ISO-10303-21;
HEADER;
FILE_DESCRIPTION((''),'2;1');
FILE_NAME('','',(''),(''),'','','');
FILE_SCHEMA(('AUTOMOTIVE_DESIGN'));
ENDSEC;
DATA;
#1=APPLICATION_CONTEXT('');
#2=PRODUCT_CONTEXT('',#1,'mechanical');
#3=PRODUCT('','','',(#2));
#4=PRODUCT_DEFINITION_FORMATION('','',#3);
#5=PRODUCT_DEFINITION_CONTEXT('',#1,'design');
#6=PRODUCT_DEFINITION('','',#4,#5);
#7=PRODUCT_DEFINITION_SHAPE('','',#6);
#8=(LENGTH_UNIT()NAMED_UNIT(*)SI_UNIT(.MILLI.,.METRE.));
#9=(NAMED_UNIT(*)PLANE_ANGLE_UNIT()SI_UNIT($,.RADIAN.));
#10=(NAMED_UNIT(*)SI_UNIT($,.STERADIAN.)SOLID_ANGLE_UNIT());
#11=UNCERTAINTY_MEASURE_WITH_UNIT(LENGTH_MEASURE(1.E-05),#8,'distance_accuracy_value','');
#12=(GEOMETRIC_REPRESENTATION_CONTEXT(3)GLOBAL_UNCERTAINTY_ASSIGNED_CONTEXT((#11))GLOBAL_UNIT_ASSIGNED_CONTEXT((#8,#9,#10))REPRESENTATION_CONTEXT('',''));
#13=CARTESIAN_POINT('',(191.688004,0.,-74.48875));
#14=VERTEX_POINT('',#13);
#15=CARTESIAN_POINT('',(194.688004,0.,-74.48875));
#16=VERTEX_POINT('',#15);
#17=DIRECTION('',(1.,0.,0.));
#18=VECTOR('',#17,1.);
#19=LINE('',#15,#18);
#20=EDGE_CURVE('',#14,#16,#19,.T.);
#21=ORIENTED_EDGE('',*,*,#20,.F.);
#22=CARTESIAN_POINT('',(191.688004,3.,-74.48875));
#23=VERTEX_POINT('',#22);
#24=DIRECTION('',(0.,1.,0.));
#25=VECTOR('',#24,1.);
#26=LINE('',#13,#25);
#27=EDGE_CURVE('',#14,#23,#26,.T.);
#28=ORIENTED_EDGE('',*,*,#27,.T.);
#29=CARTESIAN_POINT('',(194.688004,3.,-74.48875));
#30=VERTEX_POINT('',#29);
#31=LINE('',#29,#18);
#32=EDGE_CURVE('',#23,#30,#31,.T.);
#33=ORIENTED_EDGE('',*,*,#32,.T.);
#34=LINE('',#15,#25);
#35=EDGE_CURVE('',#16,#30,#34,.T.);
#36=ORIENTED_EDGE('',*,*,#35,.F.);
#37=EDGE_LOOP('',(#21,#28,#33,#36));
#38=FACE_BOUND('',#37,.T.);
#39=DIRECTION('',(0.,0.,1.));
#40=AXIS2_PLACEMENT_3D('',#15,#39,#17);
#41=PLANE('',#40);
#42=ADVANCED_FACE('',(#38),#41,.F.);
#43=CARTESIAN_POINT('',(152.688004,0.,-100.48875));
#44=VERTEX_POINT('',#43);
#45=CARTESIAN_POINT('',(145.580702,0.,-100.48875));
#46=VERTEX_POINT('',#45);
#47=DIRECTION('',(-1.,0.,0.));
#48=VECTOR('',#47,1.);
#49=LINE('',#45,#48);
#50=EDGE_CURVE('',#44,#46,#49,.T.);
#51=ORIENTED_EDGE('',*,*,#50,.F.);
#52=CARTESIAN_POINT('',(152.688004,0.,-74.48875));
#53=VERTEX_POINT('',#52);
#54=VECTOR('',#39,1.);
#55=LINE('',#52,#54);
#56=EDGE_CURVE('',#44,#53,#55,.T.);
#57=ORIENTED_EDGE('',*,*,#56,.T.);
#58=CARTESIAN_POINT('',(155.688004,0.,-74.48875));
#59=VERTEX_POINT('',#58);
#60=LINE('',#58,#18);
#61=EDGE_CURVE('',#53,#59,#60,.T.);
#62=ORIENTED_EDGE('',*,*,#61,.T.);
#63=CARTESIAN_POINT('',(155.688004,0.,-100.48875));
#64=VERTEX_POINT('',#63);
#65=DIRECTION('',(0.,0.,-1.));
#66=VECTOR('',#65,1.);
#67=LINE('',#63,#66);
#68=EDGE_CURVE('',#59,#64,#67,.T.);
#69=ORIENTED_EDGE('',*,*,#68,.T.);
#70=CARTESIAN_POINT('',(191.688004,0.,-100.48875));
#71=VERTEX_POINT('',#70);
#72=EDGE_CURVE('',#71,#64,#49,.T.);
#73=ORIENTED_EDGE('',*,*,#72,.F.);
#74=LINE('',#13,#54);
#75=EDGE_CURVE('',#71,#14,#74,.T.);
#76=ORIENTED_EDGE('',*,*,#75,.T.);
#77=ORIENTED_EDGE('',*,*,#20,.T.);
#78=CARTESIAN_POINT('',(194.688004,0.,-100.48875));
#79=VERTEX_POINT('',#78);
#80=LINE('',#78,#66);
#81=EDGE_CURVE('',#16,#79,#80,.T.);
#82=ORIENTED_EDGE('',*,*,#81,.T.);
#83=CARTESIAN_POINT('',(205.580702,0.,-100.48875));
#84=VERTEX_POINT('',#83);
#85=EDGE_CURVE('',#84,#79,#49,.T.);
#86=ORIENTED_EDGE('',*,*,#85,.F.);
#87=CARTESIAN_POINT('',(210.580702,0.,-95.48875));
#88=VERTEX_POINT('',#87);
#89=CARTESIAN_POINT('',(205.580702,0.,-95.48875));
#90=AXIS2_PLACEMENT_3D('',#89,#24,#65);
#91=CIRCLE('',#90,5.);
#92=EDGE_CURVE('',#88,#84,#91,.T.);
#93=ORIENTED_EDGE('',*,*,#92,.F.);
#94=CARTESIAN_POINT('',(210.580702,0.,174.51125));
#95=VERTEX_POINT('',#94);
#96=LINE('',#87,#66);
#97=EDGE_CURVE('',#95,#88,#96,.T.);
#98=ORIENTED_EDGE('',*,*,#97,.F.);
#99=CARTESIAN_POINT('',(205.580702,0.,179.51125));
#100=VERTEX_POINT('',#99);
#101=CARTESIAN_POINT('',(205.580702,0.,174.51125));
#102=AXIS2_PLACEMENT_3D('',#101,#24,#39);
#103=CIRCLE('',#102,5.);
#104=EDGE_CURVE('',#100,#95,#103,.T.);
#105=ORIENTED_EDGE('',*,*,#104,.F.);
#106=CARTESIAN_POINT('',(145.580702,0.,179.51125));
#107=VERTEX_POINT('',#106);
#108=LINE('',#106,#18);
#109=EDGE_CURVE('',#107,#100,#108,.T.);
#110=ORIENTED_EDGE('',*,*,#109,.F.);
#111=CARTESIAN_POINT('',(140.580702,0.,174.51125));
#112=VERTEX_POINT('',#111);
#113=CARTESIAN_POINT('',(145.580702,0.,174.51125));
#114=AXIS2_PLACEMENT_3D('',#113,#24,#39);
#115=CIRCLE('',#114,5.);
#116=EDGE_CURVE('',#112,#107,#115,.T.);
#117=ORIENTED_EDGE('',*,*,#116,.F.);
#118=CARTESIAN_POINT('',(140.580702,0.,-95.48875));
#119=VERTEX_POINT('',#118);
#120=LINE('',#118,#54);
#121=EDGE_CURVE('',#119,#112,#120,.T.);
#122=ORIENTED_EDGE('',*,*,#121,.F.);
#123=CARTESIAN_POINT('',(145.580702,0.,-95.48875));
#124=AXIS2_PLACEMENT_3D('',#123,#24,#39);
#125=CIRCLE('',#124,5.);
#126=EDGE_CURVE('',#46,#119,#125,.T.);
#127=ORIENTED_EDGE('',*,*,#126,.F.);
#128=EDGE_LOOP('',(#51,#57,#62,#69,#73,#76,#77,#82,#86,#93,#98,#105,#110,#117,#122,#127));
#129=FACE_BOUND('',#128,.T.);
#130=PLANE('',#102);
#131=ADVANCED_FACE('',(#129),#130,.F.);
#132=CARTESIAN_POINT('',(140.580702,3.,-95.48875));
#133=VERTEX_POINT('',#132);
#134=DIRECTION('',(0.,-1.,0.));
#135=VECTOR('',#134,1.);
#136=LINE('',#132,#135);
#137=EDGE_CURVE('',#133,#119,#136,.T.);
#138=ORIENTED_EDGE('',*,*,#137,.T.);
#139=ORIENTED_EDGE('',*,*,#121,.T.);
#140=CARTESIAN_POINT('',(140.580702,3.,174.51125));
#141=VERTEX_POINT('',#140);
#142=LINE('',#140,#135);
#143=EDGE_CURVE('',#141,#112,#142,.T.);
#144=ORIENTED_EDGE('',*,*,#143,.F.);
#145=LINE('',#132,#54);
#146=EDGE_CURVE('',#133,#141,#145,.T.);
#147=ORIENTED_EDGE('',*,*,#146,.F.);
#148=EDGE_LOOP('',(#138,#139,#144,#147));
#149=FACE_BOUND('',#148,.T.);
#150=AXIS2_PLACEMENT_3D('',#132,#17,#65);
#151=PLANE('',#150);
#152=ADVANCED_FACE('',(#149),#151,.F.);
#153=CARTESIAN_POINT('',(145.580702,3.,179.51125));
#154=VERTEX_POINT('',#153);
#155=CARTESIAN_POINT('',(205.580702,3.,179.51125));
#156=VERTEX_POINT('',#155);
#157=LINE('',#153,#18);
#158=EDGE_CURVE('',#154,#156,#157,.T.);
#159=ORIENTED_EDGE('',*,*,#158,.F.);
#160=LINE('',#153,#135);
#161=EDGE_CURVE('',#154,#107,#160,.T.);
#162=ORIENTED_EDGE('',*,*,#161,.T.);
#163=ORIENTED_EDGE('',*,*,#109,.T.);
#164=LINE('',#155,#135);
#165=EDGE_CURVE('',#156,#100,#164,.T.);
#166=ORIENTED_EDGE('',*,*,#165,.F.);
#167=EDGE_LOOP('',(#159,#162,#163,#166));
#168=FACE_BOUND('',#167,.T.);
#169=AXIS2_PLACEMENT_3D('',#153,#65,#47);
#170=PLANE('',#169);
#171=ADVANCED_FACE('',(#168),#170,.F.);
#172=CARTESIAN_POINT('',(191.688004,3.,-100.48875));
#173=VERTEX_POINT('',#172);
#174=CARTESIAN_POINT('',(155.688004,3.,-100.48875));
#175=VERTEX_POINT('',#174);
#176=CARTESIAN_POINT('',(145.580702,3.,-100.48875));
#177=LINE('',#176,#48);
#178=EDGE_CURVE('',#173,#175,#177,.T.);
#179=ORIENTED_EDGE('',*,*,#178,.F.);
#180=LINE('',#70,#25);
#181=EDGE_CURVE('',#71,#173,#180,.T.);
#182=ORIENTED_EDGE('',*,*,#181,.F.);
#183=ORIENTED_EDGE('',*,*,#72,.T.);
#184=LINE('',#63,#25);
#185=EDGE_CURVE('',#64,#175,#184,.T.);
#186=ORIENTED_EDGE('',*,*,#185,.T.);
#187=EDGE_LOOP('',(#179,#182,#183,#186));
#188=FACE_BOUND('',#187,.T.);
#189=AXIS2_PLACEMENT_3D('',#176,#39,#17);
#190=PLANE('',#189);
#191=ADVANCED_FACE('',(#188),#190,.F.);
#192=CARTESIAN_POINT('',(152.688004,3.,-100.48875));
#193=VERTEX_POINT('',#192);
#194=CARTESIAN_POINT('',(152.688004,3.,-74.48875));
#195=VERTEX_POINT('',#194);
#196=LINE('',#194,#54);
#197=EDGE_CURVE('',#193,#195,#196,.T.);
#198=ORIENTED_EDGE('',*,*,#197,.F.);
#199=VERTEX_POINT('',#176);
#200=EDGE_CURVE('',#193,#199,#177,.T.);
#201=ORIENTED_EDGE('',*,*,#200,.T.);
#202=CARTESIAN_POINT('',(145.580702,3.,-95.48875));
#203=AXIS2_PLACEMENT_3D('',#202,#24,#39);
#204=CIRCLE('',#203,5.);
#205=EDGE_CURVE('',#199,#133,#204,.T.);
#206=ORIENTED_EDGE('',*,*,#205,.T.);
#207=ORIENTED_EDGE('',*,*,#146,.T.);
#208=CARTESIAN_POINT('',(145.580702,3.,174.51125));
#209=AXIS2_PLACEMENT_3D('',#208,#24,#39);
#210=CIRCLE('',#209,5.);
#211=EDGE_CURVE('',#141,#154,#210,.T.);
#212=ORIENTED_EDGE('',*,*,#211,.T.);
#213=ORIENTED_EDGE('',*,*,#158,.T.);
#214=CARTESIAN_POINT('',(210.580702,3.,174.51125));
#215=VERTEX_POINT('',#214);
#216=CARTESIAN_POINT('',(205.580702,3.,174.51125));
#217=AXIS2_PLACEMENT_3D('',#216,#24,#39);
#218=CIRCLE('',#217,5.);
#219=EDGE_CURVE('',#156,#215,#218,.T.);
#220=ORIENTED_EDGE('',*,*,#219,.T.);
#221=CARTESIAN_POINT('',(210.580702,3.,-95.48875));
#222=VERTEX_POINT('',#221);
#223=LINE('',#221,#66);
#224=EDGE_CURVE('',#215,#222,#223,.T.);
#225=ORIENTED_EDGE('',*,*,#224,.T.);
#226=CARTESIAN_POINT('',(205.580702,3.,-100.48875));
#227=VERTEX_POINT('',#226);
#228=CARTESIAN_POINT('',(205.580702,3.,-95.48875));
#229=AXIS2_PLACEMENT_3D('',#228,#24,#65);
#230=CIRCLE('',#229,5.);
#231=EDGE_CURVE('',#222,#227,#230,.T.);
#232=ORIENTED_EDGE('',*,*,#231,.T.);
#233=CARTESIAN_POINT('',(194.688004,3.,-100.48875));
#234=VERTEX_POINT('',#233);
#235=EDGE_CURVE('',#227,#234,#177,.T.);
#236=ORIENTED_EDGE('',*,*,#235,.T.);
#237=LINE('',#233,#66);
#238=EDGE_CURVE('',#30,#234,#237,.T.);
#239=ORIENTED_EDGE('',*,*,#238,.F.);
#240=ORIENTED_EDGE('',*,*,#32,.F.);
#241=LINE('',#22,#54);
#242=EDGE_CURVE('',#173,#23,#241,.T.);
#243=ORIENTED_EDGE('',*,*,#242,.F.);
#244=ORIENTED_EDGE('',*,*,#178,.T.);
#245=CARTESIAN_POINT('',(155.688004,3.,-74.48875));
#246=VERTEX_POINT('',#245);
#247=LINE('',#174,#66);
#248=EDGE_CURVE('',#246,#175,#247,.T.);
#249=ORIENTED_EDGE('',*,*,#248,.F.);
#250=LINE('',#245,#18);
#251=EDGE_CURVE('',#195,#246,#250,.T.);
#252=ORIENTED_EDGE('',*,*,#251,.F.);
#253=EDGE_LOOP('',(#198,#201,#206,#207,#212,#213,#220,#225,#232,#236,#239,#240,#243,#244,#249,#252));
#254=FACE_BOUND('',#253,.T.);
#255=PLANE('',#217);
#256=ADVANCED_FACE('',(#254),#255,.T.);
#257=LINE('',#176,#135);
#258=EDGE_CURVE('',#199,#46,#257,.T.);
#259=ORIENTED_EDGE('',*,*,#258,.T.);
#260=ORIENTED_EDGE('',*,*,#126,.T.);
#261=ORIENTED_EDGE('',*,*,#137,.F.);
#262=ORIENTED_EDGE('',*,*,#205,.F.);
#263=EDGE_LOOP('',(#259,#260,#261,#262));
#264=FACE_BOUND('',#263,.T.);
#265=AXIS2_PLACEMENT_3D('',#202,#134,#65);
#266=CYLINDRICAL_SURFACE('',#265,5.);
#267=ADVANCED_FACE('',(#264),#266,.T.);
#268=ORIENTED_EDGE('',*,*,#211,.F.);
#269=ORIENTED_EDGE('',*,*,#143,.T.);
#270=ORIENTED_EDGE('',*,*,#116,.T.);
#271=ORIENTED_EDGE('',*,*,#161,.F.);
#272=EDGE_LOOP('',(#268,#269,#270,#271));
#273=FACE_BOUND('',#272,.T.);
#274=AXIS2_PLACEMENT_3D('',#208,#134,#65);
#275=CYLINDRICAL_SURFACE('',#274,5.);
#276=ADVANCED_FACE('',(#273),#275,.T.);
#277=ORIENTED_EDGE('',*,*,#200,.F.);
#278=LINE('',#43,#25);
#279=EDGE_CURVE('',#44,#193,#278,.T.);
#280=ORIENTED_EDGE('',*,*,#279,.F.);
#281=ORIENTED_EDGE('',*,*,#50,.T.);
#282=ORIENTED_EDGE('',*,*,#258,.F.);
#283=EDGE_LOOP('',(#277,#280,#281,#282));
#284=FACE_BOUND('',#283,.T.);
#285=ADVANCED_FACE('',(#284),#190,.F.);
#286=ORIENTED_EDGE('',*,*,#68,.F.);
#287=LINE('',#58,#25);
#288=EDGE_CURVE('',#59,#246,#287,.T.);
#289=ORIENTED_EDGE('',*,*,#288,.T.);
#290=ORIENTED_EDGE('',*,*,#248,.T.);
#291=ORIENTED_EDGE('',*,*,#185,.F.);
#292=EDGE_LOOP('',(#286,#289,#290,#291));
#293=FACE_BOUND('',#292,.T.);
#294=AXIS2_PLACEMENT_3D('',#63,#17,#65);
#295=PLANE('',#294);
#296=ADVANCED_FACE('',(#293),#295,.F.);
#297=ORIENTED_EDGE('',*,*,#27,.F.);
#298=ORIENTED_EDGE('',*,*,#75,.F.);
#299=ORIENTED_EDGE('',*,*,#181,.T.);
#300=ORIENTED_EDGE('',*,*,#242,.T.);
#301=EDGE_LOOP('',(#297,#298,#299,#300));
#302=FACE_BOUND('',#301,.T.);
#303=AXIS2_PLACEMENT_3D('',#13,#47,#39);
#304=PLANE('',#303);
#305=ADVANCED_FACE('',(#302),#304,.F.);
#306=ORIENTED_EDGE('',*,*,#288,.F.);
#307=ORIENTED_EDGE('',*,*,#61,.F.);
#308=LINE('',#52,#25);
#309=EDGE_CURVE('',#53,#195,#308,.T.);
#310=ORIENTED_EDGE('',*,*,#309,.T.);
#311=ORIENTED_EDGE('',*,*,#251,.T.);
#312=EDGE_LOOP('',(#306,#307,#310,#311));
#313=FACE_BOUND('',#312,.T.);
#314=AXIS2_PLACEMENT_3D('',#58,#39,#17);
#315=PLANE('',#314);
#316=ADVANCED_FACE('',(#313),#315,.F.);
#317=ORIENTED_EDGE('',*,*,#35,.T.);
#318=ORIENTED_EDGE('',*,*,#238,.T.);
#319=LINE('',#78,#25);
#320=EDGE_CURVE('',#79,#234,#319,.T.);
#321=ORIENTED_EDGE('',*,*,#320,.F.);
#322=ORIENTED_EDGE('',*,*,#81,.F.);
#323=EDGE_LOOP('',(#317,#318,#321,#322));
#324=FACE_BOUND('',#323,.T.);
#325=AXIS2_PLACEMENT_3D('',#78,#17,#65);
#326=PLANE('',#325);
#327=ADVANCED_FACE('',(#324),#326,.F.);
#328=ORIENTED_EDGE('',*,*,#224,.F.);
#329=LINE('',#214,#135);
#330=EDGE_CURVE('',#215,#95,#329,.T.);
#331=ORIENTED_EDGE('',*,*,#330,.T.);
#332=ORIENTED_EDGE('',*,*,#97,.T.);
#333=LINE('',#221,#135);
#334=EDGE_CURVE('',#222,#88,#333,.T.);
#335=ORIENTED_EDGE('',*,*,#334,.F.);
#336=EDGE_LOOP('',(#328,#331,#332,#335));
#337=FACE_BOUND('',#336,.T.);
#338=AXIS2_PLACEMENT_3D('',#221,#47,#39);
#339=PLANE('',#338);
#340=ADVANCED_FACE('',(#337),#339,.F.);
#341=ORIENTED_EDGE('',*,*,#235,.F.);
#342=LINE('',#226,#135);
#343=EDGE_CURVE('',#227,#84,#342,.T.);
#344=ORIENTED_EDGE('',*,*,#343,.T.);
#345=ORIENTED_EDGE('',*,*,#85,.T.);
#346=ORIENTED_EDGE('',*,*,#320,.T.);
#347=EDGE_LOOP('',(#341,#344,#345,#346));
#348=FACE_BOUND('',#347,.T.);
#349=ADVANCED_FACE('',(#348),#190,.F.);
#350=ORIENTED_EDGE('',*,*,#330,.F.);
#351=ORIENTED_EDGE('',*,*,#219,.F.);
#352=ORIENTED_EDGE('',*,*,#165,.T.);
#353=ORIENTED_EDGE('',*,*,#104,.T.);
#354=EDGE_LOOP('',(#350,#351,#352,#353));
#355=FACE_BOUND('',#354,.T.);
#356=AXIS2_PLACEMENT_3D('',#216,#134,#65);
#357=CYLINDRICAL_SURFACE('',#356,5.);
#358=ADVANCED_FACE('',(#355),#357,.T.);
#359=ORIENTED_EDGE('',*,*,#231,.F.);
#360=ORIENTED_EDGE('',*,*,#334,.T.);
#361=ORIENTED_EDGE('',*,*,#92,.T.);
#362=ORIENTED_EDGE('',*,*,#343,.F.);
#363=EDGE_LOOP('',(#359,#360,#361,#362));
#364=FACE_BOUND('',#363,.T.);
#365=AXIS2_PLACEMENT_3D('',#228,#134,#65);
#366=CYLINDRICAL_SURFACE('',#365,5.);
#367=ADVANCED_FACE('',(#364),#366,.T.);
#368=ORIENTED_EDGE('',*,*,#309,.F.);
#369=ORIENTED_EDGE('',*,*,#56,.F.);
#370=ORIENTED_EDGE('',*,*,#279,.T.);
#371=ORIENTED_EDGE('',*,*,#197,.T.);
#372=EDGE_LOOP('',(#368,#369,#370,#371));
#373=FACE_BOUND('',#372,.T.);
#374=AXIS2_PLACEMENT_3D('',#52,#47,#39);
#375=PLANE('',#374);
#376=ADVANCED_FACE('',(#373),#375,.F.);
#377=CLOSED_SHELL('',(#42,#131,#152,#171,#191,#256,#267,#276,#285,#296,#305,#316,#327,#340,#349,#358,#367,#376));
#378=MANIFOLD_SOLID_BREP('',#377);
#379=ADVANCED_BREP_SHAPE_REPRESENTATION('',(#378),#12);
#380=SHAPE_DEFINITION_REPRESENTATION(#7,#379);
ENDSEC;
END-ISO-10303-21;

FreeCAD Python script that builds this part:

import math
import FreeCAD as App
import Part
import Sketcher


def add_polygon(sketch, points):
    """Adds a closed chain of lines whose ends are joined by coincident constraints."""
    first, n = sketch.GeometryCount, len(points)
    for a, b in zip(points, points[1:] + points[:1]):
        sketch.addGeometry(Part.LineSegment(App.Vector(*a, 0), App.Vector(*b, 0)), False)
    for i in range(n):
        sketch.addConstraint(Sketcher.Constraint("Coincident", first + i, 2, first + (i + 1) % n, 1))

doc = App.newDocument("Part")
body = doc.addObject("PartDesign::Body", "Body")

sketch1 = body.newObject("Sketcher::SketchObject", "Sketch")
sketch1.AttachmentSupport = (doc.getObject("XZ_Plane"), [""])
sketch1.MapMode = "FlatFace"
sketch1.addGeometry([
    Part.LineSegment(App.Vector(206, -100, 0), App.Vector(146, -100, 0)),
    Part.ArcOfCircle(Part.Circle(App.Vector(146, -95, 0), App.Vector(0, 0, 1), 5), math.radians(-180), math.radians(-90)),
    Part.LineSegment(App.Vector(141, -95, 0), App.Vector(141, 175, 0)),
    Part.ArcOfCircle(Part.Circle(App.Vector(146, 175, 0), App.Vector(0, 0, 1), 5), math.radians(90), math.radians(180)),
    Part.LineSegment(App.Vector(146, 180, 0), App.Vector(206, 180, 0)),
    Part.ArcOfCircle(Part.Circle(App.Vector(206, 175, 0), App.Vector(0, 0, 1), 5), math.radians(0), math.radians(90)),
    Part.LineSegment(App.Vector(211, 175, 0), App.Vector(211, -95, 0)),
    Part.ArcOfCircle(Part.Circle(App.Vector(206, -95, 0), App.Vector(0, 0, 1), 5), math.radians(-90), math.radians(0)),
], False)
sketch1.addConstraint([
    Sketcher.Constraint("Tangent", 0, 2, 1, 2),
    Sketcher.Constraint("Tangent", 1, 1, 2, 1),
    Sketcher.Constraint("Tangent", 2, 2, 3, 2),
    Sketcher.Constraint("Tangent", 3, 1, 4, 1),
    Sketcher.Constraint("Tangent", 4, 2, 5, 2),
    Sketcher.Constraint("Tangent", 5, 1, 6, 1),
    Sketcher.Constraint("Tangent", 6, 2, 7, 2),
    Sketcher.Constraint("Tangent", 7, 1, 0, 1),
    Sketcher.Constraint("Horizontal", 0),
    Sketcher.Constraint("Vertical", 2),
    Sketcher.Constraint("Horizontal", 4),
    Sketcher.Constraint("Vertical", 6),
    Sketcher.Constraint("Equal", 1, 3),
    Sketcher.Constraint("Equal", 3, 5),
    Sketcher.Constraint("Equal", 5, 7),
    Sketcher.Constraint("Radius", 1, 5.0),
    Sketcher.Constraint("DistanceX", 0, 2, 0, 1, 60.0),
    Sketcher.Constraint("DistanceY", 2, 1, 2, 2, 270.0),
    Sketcher.Constraint("DistanceX", -1, 1, 1, 3, 145.580702),
    Sketcher.Constraint("DistanceY", 1, 3, -1, 1, 95.48875),
])
pad1 = body.newObject("PartDesign::Pad", "Pad")
pad1.Profile = sketch1
pad1.Length = 3
pad1.Reversed = True

sketch2 = body.newObject("Sketcher::SketchObject", "Sketch001")
sketch2.AttachmentSupport = (doc.getObject("XZ_Plane"), [""])
sketch2.MapMode = "FlatFace"
sketch2.AttachmentOffset = App.Placement(App.Vector(0, 0, -3), App.Rotation())
add_polygon(sketch2, [(152.7, -100.5), (152.7, -74.5), (155.7, -74.5), (155.7, -100.5)])
add_polygon(sketch2, [(191.7, -100.5), (191.7, -74.5), (194.7, -74.5), (194.7, -100.5)])
sketch2.addConstraint([
    Sketcher.Constraint("Vertical", 0),
    Sketcher.Constraint("Horizontal", 1),
    Sketcher.Constraint("Vertical", 2),
    Sketcher.Constraint("Horizontal", 3),
    Sketcher.Constraint("Vertical", 4),
    Sketcher.Constraint("Horizontal", 5),
    Sketcher.Constraint("Vertical", 6),
    Sketcher.Constraint("Horizontal", 7),
    Sketcher.Constraint("Horizontal", 1, 2, 4, 2),
    Sketcher.Constraint("Horizontal", 3, 2, 6, 2),
    Sketcher.Constraint("Equal", 3, 5),
    Sketcher.Constraint("DistanceX", 1, 1, 1, 2, 3.0),
    Sketcher.Constraint("DistanceY", 0, 1, 0, 2, 26.0),
    Sketcher.Constraint("DistanceX", 1, 2, 4, 2, 36.0),
    Sketcher.Constraint("DistanceY", 0, 2, -1, 1, 74.48875),
    Sketcher.Constraint("DistanceX", -1, 1, 0, 2, 152.688004),
])
pocket1 = body.newObject("PartDesign::Pocket", "Pocket")
pocket1.Profile = sketch2
pocket1.Type = "ThroughAll"
pocket1.Reversed = True

doc.recompute()
